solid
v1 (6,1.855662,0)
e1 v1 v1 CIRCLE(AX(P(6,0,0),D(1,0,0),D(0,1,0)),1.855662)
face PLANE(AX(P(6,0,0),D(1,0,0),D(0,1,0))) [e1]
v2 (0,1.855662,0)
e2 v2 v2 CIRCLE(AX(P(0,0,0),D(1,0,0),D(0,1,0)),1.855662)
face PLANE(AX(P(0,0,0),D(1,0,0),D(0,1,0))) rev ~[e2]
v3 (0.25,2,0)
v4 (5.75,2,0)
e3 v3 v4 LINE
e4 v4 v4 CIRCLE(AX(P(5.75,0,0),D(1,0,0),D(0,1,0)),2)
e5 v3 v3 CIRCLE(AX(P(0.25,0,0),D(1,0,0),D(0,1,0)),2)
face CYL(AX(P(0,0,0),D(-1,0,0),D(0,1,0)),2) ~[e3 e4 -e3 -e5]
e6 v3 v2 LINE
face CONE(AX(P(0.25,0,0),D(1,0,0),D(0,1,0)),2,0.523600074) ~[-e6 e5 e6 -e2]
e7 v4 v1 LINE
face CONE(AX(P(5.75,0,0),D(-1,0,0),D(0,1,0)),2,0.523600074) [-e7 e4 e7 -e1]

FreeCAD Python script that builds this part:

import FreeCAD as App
import Part
import Sketcher

V = App.Vector


def edges_at(feature, points):
    """Names of the edges that pass closest to the given points."""
    edges = feature.Shape.Edges
    near = lambda p: min(range(len(edges)), key=lambda i: edges[i].distToShape(Part.Vertex(*p))[0])
    return sorted({f"Edge{near(p) + 1}" for p in points})

doc = App.newDocument("Part")
body = doc.addObject("PartDesign::Body", "Body")

# Sketch on YZ plane
sketch1 = body.newObject("Sketcher::SketchObject", "Sketch")
sketch1.AttachmentSupport = (doc.getObject("YZ_Plane"), [""])
sketch1.MapMode = "FlatFace"
sketch1.addGeometry(Part.Circle(V(0, 0, 0), V(0, 0, 1), 2), False)
sketch1.addConstraint([
    Sketcher.Constraint("Coincident", 0, 3, -1, 1),
    Sketcher.Constraint("Diameter", 0, 4.0),
])
pad1 = body.newObject("PartDesign::Pad", "Pad")
pad1.Profile = sketch1
pad1.Length = 6
doc.recompute()

chamfer = body.newObject("PartDesign::Chamfer", "Chamfer")
chamfer.Base = (pad1, edges_at(pad1, [(6, -2, 0), (0, -2, 0)]))
chamfer.ChamferType = "Two distances"
chamfer.Size = 0.25
chamfer.Size2 = 0.144338

doc.recompute()
